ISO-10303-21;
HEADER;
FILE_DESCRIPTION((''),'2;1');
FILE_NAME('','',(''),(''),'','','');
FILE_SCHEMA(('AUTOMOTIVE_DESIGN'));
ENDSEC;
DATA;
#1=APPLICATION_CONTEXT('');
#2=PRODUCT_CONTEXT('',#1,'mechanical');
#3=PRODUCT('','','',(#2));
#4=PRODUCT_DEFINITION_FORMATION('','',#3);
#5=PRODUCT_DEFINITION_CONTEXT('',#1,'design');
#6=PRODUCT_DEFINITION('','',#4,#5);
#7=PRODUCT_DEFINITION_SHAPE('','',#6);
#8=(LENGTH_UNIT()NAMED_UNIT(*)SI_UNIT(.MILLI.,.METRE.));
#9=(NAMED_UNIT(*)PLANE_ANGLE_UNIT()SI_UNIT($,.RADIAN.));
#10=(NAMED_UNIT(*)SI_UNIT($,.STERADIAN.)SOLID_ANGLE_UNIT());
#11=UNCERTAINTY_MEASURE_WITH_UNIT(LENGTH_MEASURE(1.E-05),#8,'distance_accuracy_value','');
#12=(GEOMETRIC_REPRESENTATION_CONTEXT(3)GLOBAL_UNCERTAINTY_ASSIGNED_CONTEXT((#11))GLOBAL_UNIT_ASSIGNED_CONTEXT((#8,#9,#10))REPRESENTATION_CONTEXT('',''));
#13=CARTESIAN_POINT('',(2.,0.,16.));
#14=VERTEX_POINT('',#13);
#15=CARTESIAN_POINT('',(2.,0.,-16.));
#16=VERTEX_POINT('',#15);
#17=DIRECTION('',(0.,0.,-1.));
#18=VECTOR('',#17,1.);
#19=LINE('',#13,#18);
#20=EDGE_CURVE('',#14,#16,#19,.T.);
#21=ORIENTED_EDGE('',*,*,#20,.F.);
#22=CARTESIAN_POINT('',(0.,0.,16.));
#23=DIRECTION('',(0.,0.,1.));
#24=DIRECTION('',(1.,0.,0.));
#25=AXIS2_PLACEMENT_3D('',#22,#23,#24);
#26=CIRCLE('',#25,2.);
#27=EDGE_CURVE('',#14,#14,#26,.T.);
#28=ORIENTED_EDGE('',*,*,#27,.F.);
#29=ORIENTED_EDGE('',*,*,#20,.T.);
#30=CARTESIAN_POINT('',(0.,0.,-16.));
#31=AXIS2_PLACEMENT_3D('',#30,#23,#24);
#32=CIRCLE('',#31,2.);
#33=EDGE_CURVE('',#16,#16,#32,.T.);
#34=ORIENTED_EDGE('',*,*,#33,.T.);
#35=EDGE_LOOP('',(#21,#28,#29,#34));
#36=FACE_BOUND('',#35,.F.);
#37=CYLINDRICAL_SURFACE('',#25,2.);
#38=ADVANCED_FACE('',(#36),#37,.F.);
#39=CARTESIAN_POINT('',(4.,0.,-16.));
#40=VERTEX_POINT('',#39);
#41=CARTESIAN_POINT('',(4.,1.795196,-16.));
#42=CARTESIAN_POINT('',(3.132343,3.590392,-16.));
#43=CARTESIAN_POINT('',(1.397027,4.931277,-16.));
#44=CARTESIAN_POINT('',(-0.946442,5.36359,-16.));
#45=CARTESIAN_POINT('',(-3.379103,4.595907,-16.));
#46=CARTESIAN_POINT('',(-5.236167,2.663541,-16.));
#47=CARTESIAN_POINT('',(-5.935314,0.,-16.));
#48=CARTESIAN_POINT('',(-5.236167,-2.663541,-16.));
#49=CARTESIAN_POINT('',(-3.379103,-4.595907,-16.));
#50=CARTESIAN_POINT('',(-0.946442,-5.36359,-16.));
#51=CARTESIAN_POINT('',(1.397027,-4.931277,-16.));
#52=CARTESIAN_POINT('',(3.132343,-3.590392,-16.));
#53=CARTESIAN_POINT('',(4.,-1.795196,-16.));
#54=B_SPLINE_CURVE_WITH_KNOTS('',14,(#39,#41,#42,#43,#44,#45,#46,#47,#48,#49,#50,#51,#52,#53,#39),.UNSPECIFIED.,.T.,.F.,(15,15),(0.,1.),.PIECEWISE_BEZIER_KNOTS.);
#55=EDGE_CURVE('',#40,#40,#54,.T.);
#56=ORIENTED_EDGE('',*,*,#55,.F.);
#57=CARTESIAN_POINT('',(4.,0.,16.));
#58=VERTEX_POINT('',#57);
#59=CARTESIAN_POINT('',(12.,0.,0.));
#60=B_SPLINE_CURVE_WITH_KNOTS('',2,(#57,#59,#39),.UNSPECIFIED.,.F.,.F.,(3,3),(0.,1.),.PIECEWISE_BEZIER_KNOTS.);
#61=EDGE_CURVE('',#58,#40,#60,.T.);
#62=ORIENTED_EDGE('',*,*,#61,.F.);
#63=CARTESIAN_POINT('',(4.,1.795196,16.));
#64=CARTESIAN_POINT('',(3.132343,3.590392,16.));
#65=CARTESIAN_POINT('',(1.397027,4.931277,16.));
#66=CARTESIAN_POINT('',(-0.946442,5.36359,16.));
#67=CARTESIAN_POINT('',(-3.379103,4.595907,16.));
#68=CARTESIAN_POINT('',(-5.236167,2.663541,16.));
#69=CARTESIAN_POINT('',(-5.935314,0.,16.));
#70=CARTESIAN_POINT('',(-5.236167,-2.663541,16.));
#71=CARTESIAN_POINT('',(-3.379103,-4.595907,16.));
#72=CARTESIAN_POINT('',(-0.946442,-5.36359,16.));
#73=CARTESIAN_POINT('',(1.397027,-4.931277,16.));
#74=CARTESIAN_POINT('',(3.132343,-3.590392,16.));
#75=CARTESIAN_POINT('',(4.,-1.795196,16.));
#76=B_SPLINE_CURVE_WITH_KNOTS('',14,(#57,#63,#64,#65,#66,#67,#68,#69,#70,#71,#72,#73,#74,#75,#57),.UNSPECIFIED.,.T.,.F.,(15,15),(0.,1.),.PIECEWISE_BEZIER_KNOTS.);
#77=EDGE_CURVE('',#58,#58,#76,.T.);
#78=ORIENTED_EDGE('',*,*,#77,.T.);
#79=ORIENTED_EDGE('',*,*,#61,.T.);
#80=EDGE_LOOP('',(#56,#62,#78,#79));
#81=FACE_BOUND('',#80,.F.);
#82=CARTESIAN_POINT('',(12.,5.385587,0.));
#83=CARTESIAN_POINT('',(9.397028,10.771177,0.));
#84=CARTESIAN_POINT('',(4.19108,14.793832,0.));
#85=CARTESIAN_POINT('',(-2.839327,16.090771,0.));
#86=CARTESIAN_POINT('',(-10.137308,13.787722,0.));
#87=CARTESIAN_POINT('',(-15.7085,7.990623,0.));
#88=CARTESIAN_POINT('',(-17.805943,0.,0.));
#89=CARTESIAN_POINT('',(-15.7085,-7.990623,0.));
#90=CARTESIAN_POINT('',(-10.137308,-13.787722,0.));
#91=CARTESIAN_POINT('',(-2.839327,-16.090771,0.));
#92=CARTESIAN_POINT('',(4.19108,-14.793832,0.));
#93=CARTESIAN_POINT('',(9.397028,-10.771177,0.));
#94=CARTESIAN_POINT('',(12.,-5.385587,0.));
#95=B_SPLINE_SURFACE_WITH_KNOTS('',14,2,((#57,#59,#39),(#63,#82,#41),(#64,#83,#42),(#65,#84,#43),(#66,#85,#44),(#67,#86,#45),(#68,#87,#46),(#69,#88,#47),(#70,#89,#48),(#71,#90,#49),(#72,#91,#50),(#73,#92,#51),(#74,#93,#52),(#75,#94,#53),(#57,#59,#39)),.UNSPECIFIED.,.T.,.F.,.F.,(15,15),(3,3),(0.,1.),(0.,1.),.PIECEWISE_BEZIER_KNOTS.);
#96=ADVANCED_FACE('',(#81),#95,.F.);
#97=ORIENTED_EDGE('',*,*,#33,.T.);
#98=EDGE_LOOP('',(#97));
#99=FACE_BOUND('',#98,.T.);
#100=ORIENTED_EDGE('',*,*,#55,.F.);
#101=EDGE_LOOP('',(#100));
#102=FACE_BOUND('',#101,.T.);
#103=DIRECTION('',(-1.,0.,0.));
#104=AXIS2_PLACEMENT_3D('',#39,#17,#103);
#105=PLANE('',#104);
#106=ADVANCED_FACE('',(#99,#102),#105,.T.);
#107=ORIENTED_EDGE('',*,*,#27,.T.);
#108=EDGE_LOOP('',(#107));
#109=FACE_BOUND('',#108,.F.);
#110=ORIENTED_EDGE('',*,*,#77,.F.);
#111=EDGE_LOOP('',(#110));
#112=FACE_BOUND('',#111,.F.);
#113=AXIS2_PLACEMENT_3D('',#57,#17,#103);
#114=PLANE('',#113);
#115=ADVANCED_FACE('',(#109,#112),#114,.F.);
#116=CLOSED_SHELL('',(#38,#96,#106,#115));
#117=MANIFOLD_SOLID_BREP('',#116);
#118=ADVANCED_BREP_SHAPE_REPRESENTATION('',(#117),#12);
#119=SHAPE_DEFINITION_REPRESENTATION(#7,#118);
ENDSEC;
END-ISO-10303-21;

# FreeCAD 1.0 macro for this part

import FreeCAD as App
import Part
import Sketcher

doc = App.newDocument("Part")
body = doc.addObject("PartDesign::Body", "Body")

# Sketch on XY plane
sketch1 = body.newObject("Sketcher::SketchObject", "Sketch")
sketch1.AttachmentSupport = (doc.getObject("XY_Plane"), [""])
sketch1.MapMode = "FlatFace"
sketch1.AttachmentOffset = App.Placement(App.Vector(0, 0, 16), App.Rotation())
sketch1.addGeometry(Part.Circle(App.Vector(0, 0, 0), App.Vector(0, 0, 1), 4), False)
sketch1.addConstraint([
    Sketcher.Constraint("Coincident", 0, 3, -1, 1),
    Sketcher.Constraint("Diameter", 0, 8.0),
])

# Sketch on XY plane
sketch2 = body.newObject("Sketcher::SketchObject", "Sketch001")
sketch2.AttachmentSupport = (doc.getObject("XY_Plane"), [""])
sketch2.MapMode = "FlatFace"
sketch2.addGeometry(Part.Circle(App.Vector(0, 0, 0), App.Vector(0, 0, 1), 8), False)
sketch2.addConstraint([
    Sketcher.Constraint("Coincident", 0, 3, -1, 1),
    Sketcher.Constraint("Diameter", 0, 16.0),
])

# Sketch on XY plane
sketch3 = body.newObject("Sketcher::SketchObject", "Sketch002")
sketch3.AttachmentSupport = (doc.getObject("XY_Plane"), [""])
sketch3.MapMode = "FlatFace"
sketch3.AttachmentOffset = App.Placement(App.Vector(0, 0, -16), App.Rotation())
sketch3.addGeometry(Part.Circle(App.Vector(0, 0, 0), App.Vector(0, 0, 1), 4), False)
sketch3.addConstraint([
    Sketcher.Constraint("Coincident", 0, 3, -1, 1),
    Sketcher.Constraint("Diameter", 0, 8.0),
])

additiveloft = body.newObject("PartDesign::AdditiveLoft", "AdditiveLoft")
additiveloft.Profile = sketch1
additiveloft.Sections = [sketch2, sketch3]

# Sketch on XY plane
sketch4 = body.newObject("Sketcher::SketchObject", "Sketch003")
sketch4.AttachmentSupport = (doc.getObject("XY_Plane"), [""])
sketch4.MapMode = "FlatFace"
sketch4.AttachmentOffset = App.Placement(App.Vector(0, 0, 16), App.Rotation())
sketch4.addGeometry(Part.Circle(App.Vector(0, 0, 0), App.Vector(0, 0, 1), 2), False)
sketch4.addConstraint([
    Sketcher.Constraint("Coincident", 0, 3, -1, 1),
    Sketcher.Constraint("Diameter", 0, 4.0),
])
pocket1 = body.newObject("PartDesign::Pocket", "Pocket")
pocket1.Profile = sketch4
pocket1.Type = "ThroughAll"

doc.recompute()
